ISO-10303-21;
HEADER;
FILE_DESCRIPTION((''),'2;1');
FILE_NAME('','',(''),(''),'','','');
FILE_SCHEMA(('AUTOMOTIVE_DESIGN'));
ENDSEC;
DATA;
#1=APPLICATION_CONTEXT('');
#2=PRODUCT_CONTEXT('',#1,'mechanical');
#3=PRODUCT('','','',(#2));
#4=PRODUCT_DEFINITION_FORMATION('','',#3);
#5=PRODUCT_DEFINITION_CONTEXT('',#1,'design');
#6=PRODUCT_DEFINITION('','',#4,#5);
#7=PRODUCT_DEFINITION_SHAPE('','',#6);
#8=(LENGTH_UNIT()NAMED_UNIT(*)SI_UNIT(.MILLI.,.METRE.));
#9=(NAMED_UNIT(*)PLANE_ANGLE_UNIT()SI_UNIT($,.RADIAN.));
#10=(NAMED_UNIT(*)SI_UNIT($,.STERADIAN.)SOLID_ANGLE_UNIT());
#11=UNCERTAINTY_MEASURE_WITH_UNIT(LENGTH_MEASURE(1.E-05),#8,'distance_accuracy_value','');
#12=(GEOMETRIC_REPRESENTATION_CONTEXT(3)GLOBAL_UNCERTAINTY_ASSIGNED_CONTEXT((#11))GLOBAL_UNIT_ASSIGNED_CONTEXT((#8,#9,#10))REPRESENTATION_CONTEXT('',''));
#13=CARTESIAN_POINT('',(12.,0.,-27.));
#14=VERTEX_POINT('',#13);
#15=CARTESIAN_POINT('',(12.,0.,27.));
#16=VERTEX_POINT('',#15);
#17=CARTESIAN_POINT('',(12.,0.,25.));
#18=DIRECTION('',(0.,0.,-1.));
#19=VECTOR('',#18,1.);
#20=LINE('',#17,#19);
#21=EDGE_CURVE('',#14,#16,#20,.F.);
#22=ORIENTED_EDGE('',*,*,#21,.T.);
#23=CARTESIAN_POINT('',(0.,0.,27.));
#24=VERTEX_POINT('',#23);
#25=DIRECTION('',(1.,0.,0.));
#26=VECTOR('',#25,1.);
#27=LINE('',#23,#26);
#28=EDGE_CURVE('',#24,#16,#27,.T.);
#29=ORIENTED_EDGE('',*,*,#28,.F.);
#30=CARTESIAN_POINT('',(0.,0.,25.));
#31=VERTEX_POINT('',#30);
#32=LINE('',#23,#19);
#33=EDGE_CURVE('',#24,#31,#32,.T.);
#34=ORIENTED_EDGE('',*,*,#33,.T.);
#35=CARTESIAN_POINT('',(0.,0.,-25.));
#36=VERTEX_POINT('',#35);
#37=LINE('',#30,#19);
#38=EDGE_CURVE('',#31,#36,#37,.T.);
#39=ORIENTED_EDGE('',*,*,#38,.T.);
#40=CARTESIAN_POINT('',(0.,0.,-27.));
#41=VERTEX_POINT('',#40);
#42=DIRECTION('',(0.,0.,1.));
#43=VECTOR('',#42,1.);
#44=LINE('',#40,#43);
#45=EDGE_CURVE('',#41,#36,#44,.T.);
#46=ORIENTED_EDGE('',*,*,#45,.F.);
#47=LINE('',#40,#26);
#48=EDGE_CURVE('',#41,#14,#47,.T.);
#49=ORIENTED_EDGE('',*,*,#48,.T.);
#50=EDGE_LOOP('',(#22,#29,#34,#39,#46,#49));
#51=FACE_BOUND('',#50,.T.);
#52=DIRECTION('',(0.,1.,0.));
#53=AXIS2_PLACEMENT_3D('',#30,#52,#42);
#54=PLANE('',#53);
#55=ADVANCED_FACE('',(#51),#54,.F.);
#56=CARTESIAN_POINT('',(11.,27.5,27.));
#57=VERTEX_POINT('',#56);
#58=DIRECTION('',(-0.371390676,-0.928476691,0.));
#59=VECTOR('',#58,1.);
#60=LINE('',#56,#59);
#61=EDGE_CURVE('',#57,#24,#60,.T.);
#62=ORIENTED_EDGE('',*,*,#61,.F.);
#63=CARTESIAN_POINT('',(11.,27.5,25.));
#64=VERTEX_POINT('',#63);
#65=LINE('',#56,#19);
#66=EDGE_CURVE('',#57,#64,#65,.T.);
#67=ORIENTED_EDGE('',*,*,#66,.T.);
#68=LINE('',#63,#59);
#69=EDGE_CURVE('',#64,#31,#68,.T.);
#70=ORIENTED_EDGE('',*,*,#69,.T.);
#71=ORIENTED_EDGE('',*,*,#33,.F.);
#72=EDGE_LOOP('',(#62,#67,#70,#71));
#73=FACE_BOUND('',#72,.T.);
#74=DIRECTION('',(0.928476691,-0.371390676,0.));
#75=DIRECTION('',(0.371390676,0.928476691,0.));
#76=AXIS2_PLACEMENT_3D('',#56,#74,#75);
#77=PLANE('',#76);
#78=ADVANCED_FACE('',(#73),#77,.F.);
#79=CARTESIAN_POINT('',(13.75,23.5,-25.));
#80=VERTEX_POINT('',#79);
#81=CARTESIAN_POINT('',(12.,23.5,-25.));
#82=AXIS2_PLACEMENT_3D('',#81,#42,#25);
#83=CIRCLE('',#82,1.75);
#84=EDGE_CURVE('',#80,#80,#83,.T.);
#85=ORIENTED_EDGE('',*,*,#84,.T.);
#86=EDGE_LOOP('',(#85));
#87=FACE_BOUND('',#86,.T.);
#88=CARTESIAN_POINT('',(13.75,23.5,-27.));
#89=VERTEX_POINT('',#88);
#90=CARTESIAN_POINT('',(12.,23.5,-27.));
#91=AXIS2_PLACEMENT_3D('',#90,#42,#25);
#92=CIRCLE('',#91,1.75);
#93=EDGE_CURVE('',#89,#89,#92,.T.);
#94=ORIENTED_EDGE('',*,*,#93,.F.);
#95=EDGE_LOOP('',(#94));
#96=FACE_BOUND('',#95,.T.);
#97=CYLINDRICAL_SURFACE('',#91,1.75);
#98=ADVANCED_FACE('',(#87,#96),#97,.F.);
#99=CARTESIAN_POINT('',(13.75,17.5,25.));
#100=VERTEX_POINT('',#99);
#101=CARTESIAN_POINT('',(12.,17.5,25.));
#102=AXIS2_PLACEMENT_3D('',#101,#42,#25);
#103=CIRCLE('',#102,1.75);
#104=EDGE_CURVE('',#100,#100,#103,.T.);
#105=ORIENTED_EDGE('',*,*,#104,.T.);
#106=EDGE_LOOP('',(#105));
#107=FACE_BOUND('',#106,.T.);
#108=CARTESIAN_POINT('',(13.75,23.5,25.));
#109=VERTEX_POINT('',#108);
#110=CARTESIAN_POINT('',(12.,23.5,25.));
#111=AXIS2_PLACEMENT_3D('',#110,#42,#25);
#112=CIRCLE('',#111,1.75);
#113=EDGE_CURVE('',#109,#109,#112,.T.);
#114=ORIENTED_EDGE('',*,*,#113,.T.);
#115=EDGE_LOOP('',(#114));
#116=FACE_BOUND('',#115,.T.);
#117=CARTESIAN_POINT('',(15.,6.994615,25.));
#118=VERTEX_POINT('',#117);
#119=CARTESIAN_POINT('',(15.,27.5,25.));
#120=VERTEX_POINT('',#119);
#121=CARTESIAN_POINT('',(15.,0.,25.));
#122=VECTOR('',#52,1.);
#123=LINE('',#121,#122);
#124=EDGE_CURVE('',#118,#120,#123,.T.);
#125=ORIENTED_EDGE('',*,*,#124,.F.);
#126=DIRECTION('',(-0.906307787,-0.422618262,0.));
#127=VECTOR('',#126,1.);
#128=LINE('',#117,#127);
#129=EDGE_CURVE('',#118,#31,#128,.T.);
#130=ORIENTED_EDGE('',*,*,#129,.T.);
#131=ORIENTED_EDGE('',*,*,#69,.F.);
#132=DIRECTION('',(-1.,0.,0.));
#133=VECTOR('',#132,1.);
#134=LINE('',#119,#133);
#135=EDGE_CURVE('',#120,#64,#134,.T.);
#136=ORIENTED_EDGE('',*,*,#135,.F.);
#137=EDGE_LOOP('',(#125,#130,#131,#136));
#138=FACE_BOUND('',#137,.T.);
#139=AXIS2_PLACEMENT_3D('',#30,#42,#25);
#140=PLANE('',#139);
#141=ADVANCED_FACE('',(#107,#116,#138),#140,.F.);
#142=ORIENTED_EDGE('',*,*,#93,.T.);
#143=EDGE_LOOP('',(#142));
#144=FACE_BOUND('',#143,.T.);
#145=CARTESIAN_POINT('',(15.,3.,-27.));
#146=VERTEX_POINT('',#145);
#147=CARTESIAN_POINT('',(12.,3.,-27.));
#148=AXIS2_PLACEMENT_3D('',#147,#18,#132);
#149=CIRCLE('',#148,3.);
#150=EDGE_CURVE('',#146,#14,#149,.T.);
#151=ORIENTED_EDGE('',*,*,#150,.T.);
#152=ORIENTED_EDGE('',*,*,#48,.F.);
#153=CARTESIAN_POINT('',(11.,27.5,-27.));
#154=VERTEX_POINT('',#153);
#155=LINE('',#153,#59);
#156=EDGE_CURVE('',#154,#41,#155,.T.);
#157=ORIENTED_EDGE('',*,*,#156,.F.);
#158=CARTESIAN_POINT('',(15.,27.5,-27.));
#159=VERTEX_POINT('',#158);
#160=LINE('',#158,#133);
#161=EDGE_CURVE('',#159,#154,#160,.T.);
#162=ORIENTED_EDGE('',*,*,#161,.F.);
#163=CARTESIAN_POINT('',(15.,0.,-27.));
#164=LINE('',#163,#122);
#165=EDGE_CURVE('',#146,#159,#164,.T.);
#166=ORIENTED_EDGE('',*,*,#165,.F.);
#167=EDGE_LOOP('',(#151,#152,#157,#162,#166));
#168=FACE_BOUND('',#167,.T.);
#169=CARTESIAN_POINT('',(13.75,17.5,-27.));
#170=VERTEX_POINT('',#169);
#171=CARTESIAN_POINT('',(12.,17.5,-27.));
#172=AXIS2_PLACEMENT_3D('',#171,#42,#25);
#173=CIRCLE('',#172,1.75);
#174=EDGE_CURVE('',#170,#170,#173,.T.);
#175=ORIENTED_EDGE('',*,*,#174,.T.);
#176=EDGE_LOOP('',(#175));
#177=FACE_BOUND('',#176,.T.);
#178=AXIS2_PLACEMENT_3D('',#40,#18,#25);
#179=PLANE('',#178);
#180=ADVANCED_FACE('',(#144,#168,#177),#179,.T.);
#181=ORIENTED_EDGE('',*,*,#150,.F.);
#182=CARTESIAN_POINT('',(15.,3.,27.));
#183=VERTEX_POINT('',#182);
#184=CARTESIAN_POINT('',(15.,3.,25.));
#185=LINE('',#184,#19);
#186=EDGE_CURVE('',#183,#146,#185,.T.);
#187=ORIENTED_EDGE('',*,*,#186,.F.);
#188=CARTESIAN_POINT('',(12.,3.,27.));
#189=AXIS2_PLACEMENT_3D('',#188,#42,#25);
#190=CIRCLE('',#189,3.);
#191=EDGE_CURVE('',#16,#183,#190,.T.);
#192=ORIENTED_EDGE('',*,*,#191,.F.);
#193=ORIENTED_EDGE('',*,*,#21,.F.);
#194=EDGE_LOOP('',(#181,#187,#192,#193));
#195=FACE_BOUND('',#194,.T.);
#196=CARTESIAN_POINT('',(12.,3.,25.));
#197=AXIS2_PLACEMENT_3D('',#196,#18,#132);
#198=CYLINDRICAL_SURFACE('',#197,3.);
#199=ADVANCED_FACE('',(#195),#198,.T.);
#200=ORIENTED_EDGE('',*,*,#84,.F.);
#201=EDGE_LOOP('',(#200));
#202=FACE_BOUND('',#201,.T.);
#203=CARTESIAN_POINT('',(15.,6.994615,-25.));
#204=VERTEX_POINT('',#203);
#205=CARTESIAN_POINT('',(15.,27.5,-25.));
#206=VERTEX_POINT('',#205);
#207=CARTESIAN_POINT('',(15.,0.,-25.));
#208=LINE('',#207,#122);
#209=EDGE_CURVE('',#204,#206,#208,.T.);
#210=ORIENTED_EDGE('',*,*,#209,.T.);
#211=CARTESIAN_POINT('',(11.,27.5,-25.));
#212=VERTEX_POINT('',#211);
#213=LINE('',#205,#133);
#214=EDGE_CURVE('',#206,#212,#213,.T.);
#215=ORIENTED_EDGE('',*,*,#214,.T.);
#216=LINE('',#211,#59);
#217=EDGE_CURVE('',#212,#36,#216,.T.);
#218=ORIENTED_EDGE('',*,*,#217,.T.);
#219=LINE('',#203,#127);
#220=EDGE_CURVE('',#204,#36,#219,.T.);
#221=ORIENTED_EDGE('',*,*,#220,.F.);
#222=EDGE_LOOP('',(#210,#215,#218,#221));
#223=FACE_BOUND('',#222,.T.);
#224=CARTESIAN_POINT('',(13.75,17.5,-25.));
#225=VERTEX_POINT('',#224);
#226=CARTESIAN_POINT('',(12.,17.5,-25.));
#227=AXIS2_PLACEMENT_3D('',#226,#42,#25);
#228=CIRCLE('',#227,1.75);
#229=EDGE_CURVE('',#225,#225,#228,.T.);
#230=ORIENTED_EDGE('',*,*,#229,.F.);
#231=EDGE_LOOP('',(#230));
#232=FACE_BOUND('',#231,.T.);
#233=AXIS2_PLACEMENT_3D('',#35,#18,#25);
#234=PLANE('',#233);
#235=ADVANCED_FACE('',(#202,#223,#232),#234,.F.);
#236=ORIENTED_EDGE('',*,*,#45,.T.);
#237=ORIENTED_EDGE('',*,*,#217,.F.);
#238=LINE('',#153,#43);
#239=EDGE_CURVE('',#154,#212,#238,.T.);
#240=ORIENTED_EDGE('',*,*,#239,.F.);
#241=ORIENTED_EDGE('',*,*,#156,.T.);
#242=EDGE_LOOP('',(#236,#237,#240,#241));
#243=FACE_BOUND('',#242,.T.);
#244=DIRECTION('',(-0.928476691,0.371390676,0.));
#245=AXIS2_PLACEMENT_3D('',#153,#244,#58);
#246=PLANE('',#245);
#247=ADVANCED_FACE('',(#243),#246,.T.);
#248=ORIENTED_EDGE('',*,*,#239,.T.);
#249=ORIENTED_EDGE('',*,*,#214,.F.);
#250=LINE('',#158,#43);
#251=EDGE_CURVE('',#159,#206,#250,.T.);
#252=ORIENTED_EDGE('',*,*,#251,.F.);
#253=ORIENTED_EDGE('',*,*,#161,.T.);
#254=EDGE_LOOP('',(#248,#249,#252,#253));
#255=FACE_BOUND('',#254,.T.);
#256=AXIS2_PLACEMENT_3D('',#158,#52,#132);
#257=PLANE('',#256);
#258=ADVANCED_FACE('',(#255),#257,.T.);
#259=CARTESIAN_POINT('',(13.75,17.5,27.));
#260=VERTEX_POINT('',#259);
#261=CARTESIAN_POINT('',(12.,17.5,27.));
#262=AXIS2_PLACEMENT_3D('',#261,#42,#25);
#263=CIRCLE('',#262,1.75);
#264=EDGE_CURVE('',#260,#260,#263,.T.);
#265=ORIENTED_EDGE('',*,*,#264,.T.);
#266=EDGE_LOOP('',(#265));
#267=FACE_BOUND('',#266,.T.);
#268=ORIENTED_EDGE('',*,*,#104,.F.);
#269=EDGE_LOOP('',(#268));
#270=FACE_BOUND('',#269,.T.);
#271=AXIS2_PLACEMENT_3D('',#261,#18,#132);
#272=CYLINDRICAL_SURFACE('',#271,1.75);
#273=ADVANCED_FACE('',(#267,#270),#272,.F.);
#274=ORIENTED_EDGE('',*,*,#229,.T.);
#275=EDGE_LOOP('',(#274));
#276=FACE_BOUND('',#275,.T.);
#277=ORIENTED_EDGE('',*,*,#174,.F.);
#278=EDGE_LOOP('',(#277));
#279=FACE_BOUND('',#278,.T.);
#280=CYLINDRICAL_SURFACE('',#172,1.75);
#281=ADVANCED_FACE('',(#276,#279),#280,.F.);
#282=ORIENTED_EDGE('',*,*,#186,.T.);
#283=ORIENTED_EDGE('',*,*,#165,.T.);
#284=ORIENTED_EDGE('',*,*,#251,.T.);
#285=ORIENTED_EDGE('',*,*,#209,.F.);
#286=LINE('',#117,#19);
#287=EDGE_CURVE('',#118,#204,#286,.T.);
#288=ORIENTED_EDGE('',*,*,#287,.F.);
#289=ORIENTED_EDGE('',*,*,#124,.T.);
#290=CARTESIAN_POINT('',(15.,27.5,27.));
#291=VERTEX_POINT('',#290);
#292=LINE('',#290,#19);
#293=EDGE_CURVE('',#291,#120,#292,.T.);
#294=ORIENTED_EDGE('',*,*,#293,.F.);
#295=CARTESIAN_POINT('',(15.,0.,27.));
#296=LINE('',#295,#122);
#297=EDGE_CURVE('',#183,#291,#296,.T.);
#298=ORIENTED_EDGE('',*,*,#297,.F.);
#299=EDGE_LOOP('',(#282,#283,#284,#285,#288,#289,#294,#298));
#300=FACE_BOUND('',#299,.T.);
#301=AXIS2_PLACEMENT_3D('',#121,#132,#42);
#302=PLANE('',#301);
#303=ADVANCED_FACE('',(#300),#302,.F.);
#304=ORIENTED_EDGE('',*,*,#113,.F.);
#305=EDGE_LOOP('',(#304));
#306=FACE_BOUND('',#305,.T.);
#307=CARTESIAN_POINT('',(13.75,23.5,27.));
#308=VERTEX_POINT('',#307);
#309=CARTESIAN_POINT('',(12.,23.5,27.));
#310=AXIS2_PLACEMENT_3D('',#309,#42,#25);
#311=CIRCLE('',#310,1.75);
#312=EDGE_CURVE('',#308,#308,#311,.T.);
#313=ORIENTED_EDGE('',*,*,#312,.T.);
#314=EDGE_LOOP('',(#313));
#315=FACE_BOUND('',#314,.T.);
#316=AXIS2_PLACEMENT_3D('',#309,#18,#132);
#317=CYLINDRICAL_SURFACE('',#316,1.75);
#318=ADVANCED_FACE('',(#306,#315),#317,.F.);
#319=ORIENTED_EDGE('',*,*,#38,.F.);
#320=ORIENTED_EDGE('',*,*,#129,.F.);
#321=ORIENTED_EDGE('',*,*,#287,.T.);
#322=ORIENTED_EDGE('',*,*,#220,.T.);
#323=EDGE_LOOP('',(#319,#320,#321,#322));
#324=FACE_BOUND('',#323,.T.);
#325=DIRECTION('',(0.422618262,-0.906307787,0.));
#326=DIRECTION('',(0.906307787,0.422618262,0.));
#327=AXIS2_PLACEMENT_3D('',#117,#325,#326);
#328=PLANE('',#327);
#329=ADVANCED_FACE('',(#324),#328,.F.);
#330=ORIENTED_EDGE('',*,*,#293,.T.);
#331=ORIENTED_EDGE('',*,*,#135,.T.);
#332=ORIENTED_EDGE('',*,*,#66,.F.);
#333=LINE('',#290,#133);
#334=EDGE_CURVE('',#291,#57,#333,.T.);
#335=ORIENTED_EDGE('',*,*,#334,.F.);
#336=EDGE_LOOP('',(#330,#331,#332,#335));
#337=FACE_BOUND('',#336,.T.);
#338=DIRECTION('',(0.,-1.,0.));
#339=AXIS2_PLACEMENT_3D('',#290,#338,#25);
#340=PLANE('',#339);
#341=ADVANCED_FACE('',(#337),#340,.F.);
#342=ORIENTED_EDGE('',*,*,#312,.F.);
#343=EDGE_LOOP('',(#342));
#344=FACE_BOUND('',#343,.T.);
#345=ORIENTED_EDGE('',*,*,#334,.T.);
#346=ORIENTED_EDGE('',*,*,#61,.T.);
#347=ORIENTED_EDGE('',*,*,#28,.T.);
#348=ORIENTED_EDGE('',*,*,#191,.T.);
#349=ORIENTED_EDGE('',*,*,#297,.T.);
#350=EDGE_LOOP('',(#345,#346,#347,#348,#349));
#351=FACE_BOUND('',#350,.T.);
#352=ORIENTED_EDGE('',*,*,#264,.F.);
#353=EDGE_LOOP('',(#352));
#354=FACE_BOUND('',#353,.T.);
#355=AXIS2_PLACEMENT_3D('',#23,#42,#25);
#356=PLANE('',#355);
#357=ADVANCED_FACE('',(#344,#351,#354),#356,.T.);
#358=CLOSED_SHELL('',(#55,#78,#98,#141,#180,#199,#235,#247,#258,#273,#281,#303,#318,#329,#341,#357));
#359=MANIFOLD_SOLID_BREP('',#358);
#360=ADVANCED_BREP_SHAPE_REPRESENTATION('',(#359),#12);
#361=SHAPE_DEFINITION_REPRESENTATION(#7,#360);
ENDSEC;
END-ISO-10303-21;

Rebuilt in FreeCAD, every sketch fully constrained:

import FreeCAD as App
import Part
import Sketcher
from FreeCAD import Vector
Q = App.Units.Quantity


def edges_at(feature, points):
    """Names of the edges that pass closest to the given points."""
    edges = feature.Shape.Edges
    near = lambda p: min(range(len(edges)), key=lambda i: edges[i].distToShape(Part.Vertex(*p))[0])
    return sorted({f"Edge{near(p) + 1}" for p in points})


def add_polygon(sketch, points):
    """Adds a closed chain of lines whose ends are joined by coincident constraints."""
    first, n = sketch.GeometryCount, len(points)
    for a, b in zip(points, points[1:] + points[:1]):
        sketch.addGeometry(Part.LineSegment(App.Vector(*a, 0), App.Vector(*b, 0)), False)
    for i in range(n):
        sketch.addConstraint(Sketcher.Constraint("Coincident", first + i, 2, first + (i + 1) % n, 1))

doc = App.newDocument("Part")
body = doc.addObject("PartDesign::Body", "Body")

# Sketch on XY plane
sketch1 = body.newObject("Sketcher::SketchObject", "Sketch")
sketch1.AttachmentSupport = (doc.getObject("XY_Plane"), [""])
sketch1.MapMode = "FlatFace"
add_polygon(sketch1, [(0, 0), (15, 0), (15, 6.994615)])  # lines 0-2
sketch1.addConstraint([
    Sketcher.Constraint("Horizontal", 0),
    Sketcher.Constraint("Vertical", 1),
    Sketcher.Constraint("Coincident", 2, 2, -1, 1),
    Sketcher.Constraint("DistanceX", 0, 1, 0, 2, Q("15 mm")),
    Sketcher.Constraint("Angle", 2, Q("-155 deg")),
])
pad1 = body.newObject("PartDesign::Pad", "Pad")
pad1.Profile = sketch1
pad1.Length = 50
pad1.Midplane = True

# Sketch on XY plane
sketch2 = body.newObject("Sketcher::SketchObject", "Sketch001")
sketch2.AttachmentSupport = (doc.getObject("XY_Plane"), [""])
sketch2.MapMode = "FlatFace"
sketch2.AttachmentOffset = App.Placement(Vector(0, 0, 25), App.Rotation())
add_polygon(sketch2, [(15, 0), (15, 27.5), (11, 27.5), (0, 0)])  # lines 0-3
sketch2.addGeometry(Part.Circle(Vector(12, 17.5, 0), Vector(0, 0, 1), 1.75), False)  # 4
sketch2.addGeometry(Part.Circle(Vector(12, 23.5, 0), Vector(0, 0, 1), 1.75), False)  # 5
sketch2.addConstraint([
    Sketcher.Constraint("Vertical", 0),
    Sketcher.Constraint("Horizontal", 1),
    Sketcher.Constraint("Horizontal", 3),
    Sketcher.Constraint("Coincident", 2, 2, -1, 1),
    Sketcher.Constraint("Equal", 4, 5),
    Sketcher.Constraint("Vertical", 4, 3, 5, 3),
    Sketcher.Constraint("Diameter", 4, Q("3.5 mm")),
    Sketcher.Constraint("DistanceX", 1, 2, 1, 1, Q("4 mm")),
    Sketcher.Constraint("DistanceX", 3, 1, 3, 2, Q("15 mm")),
    Sketcher.Constraint("DistanceY", 0, 1, 0, 2, Q("27.5 mm")),
    Sketcher.Constraint("DistanceX", -1, 1, 4, 3, Q("12 mm")),
    Sketcher.Constraint("DistanceY", 4, 3, 5, 3, Q("6 mm")),
    Sketcher.Constraint("DistanceY", 5, 3, 0, 2, Q("4 mm")),
])
pad2 = body.newObject("PartDesign::Pad", "Pad001")
pad2.Profile = sketch2
pad2.Length = 2
doc.recompute()

mirrored = body.newObject("PartDesign::Mirrored", "Mirrored")
mirrored.Originals = [pad2]
mirrored.MirrorPlane = (doc.getObject("XY_Plane"), [""])
body.Tip = mirrored
doc.recompute()

fillet = body.newObject("PartDesign::Fillet", "Fillet")
fillet.Base = (mirrored, edges_at(mirrored, [(15, 0, 0)]))
fillet.Radius = 3

doc.recompute()
